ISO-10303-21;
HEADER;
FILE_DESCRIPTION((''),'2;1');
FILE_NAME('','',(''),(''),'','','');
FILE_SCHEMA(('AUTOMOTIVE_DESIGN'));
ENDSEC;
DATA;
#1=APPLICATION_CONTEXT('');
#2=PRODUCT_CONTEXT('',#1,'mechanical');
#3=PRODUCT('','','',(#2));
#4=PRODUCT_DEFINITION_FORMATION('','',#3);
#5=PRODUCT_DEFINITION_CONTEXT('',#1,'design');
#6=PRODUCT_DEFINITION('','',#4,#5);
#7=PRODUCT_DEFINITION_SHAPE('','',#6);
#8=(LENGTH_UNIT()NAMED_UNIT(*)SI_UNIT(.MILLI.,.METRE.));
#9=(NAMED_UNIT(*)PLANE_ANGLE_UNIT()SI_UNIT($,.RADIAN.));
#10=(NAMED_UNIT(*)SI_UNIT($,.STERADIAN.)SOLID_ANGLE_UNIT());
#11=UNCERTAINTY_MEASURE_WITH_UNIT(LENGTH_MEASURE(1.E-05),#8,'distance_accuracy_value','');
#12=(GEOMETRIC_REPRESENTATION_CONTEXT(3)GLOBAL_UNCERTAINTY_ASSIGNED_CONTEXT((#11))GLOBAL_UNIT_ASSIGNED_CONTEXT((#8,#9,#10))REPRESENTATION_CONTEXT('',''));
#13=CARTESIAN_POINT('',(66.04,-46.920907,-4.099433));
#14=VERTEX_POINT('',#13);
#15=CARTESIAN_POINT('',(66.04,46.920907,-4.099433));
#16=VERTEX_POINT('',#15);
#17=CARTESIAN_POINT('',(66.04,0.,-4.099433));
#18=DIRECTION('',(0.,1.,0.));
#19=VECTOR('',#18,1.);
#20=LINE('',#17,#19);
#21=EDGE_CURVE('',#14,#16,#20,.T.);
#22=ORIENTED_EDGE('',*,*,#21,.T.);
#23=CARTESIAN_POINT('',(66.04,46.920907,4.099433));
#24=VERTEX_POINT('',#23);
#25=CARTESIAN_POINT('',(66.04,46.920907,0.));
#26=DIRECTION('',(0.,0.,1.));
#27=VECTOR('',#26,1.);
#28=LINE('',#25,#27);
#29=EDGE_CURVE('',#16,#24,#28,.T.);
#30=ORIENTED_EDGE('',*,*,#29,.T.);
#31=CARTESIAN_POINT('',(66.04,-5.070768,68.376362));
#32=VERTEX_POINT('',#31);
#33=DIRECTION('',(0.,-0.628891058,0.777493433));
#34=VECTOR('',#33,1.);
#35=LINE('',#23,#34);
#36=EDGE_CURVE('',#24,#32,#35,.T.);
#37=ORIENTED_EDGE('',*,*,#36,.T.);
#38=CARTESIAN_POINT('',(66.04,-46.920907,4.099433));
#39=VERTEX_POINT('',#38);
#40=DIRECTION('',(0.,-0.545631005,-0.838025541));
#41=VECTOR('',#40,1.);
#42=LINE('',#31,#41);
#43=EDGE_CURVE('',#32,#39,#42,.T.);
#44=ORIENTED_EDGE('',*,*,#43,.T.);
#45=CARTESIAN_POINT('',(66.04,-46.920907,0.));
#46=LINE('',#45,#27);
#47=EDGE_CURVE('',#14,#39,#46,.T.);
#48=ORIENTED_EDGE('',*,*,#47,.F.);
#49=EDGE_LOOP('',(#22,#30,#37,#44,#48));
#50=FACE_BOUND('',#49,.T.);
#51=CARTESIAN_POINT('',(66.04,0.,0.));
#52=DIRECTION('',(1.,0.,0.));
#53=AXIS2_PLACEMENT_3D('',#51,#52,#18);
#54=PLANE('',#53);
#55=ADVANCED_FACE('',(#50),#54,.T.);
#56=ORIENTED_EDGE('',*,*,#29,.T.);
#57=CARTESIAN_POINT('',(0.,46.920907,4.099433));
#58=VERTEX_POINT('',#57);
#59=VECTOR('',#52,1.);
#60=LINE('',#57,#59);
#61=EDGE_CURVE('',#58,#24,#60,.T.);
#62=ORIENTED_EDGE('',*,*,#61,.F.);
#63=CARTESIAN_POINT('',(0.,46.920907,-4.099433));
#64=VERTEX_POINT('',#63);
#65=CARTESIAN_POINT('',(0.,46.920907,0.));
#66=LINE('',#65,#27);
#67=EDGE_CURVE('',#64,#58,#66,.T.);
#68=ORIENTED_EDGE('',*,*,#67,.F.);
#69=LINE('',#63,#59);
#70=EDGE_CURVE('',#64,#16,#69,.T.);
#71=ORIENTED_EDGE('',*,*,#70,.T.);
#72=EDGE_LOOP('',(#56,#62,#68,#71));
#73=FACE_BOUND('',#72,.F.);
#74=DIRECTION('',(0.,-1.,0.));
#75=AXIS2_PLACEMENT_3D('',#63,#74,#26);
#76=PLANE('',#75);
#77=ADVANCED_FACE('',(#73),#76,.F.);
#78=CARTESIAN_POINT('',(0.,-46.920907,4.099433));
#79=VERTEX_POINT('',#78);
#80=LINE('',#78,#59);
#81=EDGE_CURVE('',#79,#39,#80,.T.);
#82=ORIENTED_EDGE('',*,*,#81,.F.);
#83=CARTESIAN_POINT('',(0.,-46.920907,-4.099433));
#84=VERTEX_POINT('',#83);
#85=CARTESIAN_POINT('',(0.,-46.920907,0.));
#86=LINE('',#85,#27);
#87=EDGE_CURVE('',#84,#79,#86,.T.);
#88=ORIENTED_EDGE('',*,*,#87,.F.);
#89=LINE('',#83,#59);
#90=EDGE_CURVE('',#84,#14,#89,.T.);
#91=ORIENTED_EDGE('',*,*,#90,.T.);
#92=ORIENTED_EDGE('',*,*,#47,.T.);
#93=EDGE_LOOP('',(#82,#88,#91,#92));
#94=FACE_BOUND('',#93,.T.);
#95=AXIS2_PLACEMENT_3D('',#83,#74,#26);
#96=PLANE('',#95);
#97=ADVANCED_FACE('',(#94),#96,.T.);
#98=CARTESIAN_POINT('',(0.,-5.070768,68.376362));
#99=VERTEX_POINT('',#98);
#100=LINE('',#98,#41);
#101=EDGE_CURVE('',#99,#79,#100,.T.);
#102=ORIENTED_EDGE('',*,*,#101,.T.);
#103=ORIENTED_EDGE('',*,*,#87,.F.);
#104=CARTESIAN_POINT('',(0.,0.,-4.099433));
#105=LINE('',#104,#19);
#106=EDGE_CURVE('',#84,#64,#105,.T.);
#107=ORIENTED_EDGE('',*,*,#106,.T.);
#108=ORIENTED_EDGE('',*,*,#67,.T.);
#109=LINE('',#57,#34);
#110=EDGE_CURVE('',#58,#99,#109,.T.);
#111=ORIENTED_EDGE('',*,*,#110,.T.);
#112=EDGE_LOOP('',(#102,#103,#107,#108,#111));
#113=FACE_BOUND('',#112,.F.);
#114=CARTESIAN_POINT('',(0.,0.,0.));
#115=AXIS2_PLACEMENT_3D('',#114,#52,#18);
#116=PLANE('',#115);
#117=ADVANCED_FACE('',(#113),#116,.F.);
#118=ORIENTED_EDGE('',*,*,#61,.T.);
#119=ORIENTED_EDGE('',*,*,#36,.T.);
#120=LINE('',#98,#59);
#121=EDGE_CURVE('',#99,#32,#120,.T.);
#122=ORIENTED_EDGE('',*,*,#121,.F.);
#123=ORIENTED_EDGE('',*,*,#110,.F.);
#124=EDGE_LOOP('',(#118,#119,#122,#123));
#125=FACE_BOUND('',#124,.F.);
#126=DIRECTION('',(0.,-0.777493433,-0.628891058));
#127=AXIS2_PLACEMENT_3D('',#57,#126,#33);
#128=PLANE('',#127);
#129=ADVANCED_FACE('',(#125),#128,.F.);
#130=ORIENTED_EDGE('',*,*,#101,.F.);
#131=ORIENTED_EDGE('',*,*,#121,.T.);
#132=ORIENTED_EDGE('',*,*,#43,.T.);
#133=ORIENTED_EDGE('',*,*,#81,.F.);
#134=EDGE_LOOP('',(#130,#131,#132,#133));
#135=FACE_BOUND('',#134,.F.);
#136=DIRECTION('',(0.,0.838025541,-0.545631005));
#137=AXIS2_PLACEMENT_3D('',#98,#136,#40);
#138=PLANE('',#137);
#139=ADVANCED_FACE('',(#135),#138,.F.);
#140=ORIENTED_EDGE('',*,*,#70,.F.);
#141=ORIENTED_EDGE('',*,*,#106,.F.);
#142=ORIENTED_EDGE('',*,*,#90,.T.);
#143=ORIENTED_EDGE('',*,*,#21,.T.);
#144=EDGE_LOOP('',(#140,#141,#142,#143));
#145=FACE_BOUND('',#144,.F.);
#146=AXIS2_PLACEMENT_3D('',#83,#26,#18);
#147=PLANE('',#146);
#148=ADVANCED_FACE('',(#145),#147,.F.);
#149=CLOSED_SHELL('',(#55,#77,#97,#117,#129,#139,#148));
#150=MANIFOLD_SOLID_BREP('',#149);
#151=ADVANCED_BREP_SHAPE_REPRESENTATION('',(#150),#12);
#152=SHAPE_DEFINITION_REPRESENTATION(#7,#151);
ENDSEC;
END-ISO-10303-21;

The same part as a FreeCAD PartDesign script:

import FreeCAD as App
import Part
import Sketcher

V = App.Vector
Q = App.Units.Quantity


def add_polygon(sketch, points):
    """Adds a closed chain of lines whose ends are joined by coincident constraints."""
    first, n = sketch.GeometryCount, len(points)
    for a, b in zip(points, points[1:] + points[:1]):
        sketch.addGeometry(Part.LineSegment(App.Vector(*a, 0), App.Vector(*b, 0)), False)
    for i in range(n):
        sketch.addConstraint(Sketcher.Constraint("Coincident", first + i, 2, first + (i + 1) % n, 1))

doc = App.newDocument("Part")
body = doc.addObject("PartDesign::Body", "Body")

sketch1 = body.newObject("Sketcher::SketchObject", "Sketch")
sketch1.AttachmentSupport = (doc.getObject("YZ_Plane"), [""])
sketch1.MapMode = "FlatFace"
add_polygon(sketch1, [(-47, 4), (-47, -4), (47, -4), (47, 4), (-5, 68)])
sketch1.addConstraint([
    Sketcher.Constraint("Vertical", 0),
    Sketcher.Constraint("Horizontal", 1),
    Sketcher.Constraint("Vertical", 2),
    Sketcher.Constraint("Symmetric", 0, 2, 2, 2, -1, 1),
    Sketcher.Constraint("Horizontal", 2, 2, 4, 2),
    Sketcher.Constraint("Distance", 3, Q("82.67199 mm")),
    Sketcher.Constraint("Distance", 4, Q("76.700442 mm")),
    Sketcher.Constraint("DistanceX", 1, 1, 1, 2, Q("93.841814 mm")),
    Sketcher.Constraint("DistanceY", 0, 2, 0, 1, Q("8.198866 mm")),
])
pad1 = body.newObject("PartDesign::Pad", "Pad")
pad1.Profile = sketch1
pad1.Length = Q("2.6 in")

doc.recompute()
